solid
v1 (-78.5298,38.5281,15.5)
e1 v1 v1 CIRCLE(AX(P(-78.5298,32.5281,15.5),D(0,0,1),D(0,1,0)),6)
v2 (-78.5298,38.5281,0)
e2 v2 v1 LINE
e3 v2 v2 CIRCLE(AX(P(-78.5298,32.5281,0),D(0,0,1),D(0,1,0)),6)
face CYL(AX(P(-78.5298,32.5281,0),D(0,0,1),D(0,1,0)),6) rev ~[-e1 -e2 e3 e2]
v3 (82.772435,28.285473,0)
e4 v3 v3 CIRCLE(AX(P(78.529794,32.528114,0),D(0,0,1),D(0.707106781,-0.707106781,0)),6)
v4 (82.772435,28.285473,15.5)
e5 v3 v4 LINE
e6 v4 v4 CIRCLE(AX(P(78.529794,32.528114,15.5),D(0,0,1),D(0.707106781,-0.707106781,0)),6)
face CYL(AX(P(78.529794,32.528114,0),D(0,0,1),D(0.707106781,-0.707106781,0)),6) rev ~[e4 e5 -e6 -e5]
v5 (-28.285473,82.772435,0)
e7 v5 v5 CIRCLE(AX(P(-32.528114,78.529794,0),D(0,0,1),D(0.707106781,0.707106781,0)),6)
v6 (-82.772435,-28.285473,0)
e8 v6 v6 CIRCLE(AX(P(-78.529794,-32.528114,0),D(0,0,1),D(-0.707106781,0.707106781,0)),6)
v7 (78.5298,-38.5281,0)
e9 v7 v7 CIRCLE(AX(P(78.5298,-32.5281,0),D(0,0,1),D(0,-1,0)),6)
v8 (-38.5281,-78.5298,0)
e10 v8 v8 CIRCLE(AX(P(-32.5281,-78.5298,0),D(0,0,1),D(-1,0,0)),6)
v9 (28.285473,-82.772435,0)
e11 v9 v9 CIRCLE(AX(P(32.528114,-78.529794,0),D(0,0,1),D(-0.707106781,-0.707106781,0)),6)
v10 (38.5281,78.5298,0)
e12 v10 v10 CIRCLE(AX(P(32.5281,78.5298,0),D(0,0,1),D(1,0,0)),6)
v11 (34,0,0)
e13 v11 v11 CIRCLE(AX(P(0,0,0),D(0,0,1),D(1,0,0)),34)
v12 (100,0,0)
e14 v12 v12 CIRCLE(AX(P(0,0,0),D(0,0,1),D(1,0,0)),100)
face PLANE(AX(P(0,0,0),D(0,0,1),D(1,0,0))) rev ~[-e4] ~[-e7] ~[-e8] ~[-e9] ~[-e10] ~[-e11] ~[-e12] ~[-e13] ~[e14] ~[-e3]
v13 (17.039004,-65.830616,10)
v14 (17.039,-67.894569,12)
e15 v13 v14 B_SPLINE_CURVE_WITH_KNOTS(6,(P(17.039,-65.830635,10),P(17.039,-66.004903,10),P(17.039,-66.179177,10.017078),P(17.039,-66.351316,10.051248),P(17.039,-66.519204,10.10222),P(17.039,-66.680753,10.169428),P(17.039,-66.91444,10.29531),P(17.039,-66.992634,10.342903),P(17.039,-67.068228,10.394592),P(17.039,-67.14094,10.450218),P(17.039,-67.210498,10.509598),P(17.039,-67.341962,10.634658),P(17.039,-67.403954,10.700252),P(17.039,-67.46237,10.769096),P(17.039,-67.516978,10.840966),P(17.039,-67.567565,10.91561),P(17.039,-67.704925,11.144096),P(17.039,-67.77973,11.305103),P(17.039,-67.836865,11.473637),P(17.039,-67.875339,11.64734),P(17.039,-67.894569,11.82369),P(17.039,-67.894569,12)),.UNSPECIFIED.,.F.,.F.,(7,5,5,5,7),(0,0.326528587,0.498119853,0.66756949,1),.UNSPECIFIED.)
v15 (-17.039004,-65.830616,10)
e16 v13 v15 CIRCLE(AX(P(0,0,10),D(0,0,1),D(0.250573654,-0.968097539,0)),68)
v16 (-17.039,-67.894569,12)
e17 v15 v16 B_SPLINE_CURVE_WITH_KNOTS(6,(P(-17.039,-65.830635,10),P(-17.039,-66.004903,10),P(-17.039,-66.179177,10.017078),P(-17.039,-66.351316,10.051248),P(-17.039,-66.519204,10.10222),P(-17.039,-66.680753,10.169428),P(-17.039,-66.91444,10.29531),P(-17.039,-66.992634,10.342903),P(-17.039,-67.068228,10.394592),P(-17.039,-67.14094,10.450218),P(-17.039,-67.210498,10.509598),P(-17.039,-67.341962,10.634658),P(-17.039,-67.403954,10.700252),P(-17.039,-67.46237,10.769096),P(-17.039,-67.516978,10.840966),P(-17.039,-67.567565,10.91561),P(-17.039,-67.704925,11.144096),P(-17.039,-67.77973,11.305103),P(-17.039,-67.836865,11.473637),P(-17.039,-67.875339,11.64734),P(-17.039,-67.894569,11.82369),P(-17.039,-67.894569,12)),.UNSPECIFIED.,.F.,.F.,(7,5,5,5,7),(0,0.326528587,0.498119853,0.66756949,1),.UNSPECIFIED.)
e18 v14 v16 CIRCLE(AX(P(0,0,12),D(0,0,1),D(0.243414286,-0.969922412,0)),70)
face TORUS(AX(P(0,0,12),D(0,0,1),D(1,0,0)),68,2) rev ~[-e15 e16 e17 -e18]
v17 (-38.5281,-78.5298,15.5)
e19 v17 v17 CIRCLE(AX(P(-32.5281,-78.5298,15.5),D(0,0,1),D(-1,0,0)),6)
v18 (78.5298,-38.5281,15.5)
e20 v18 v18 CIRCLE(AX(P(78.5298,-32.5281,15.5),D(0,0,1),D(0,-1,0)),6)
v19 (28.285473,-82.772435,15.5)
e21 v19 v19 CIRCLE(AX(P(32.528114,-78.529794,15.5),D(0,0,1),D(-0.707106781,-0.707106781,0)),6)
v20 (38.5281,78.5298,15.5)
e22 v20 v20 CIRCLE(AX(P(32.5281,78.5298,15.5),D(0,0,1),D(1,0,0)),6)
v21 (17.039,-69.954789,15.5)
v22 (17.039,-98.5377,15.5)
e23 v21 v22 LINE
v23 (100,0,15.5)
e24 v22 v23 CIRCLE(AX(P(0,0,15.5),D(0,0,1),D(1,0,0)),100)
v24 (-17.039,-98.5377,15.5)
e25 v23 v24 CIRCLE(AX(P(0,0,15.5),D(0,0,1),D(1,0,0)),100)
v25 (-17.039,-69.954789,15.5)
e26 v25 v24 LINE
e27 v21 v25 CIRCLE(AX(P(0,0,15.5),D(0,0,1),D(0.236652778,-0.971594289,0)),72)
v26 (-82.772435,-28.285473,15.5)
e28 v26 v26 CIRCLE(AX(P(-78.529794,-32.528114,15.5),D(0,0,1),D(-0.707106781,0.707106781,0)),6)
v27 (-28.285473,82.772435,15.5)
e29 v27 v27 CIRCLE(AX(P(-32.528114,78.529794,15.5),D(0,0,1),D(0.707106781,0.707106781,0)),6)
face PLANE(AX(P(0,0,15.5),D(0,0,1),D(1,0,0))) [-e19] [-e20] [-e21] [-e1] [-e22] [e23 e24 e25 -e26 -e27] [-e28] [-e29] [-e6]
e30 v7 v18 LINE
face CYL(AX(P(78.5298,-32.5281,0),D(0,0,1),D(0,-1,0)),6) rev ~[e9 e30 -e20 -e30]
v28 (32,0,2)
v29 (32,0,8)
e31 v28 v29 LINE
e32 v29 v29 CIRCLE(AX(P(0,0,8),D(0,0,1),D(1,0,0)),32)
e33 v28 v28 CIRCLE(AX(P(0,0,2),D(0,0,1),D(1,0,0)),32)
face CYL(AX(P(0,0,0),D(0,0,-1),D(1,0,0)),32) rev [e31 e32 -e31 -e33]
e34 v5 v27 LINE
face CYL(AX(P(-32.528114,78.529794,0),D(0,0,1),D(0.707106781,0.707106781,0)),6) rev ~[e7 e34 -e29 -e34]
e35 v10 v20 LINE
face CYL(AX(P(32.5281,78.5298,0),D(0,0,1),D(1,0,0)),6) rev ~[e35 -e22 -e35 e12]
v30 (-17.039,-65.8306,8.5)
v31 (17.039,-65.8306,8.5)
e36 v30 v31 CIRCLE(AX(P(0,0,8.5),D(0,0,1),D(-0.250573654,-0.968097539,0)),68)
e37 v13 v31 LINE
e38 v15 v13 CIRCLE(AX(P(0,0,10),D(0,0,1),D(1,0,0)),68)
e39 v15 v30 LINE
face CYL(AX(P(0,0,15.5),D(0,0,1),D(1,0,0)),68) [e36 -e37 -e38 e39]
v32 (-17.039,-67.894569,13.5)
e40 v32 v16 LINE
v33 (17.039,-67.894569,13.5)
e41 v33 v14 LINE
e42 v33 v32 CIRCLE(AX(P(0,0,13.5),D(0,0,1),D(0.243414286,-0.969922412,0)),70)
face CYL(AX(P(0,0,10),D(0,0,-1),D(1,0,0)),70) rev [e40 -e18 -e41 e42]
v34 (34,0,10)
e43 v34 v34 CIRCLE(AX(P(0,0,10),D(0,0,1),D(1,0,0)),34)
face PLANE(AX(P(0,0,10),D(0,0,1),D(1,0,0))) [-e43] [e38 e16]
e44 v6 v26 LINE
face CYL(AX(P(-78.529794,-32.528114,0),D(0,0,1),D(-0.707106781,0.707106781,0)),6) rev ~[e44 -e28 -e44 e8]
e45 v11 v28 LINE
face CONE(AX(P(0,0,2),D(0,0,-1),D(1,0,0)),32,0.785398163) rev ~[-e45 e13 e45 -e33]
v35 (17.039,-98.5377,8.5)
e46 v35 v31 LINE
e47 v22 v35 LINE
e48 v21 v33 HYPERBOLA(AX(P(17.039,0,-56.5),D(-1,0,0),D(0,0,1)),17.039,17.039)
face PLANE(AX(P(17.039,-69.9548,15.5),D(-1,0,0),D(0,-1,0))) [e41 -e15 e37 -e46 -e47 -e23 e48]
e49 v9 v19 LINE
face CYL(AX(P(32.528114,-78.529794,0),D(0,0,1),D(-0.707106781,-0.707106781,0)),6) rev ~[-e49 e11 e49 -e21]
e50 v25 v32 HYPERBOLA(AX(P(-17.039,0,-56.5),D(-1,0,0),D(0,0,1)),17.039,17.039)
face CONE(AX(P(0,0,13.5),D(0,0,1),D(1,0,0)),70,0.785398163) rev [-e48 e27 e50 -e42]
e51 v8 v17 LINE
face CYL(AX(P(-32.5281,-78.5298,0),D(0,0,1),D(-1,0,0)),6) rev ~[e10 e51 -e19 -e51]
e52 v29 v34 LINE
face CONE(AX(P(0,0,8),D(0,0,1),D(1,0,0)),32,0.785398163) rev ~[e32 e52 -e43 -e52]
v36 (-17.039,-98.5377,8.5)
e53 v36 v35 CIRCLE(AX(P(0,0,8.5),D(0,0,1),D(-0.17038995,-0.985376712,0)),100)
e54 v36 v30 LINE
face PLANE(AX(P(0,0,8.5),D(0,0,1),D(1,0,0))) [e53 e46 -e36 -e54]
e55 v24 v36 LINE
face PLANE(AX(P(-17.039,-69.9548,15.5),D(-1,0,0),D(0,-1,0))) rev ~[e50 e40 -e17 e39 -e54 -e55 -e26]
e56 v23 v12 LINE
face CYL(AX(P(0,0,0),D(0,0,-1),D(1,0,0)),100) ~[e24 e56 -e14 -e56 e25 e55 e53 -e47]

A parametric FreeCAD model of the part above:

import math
import FreeCAD as App
import Part
import Sketcher
Q = App.Units.Quantity


def edges_at(feature, points):
    """Names of the edges that pass closest to the given points."""
    edges = feature.Shape.Edges
    near = lambda p: min(range(len(edges)), key=lambda i: edges[i].distToShape(Part.Vertex(*p))[0])
    return sorted({f"Edge{near(p) + 1}" for p in points})

doc = App.newDocument("Part")
body = doc.addObject("PartDesign::Body", "Body")

sketch1 = doc.addObject("Sketcher::SketchObject", "Sketch")
body.addObject(sketch1)
sketch1.AttachmentSupport = (doc.XY_Plane, [""])
sketch1.MapMode = "FlatFace"
sketch1.addGeometry([
    Part.Circle(App.Vector(0, 0, 0), App.Vector(0, 0, 1), 100),
    Part.Circle(App.Vector(0, 0, 0), App.Vector(0, 0, 1), 32),
], False)
sketch1.addConstraint([
    Sketcher.Constraint("Coincident", 0, 3, -1, 1),
    Sketcher.Constraint("Coincident", 1, 3, -1, 1),
    Sketcher.Constraint("Diameter", 0, Q("200 mm")),
    Sketcher.Constraint("Diameter", 1, Q("64 mm")),
])
pad1 = doc.addObject("PartDesign::Pad", "Pad")
body.addObject(pad1)
pad1.Profile = sketch1
pad1.Length = 10

sketch2 = doc.addObject("Sketcher::SketchObject", "Sketch001")
body.addObject(sketch2)
sketch2.AttachmentSupport = (doc.XY_Plane, [""])
sketch2.MapMode = "FlatFace"
sketch2.AttachmentOffset = App.Placement(App.Vector(0, 0, 10), App.Rotation())
sketch2.addGeometry([
    Part.Circle(App.Vector(0, 0, 0), App.Vector(0, 0, 1), 100),
    Part.Circle(App.Vector(0, 0, 0), App.Vector(0, 0, 1), 70),
], False)
sketch2.addConstraint([
    Sketcher.Constraint("Coincident", 0, 3, -1, 1),
    Sketcher.Constraint("Coincident", 1, 3, -1, 1),
    Sketcher.Constraint("Diameter", 1, Q("140 mm")),
    Sketcher.Constraint("Diameter", 0, Q("200 mm")),
])
pad2 = doc.addObject("PartDesign::Pad", "Pad001")
body.addObject(pad2)
pad2.Profile = sketch2
pad2.Length = 5.5

sketch3 = doc.addObject("Sketcher::SketchObject", "Sketch002")
body.addObject(sketch3)
sketch3.AttachmentSupport = (doc.XY_Plane, [""])
sketch3.MapMode = "FlatFace"
sketch3.addGeometry(Part.Circle(App.Vector(-79, 33, 0), App.Vector(0, 0, 1), 6), False)
sketch3.addConstraint([
    Sketcher.Constraint("Diameter", 0, Q("12 mm")),
    Sketcher.Constraint("DistanceY", -1, 1, 0, 3, Q("32.528 mm")),
    Sketcher.Constraint("DistanceX", 0, 3, -1, 1, Q("78.5298 mm")),
])
doc.recompute()
hole = doc.addObject("PartDesign::Hole", "Hole")
body.addObject(hole)
hole.Profile = sketch3
hole.ThreadType = "None"
hole.Diameter = 12
hole.DepthType = "ThroughAll"
hole.Reversed = True
doc.recompute()

polarpattern = doc.addObject("PartDesign::PolarPattern", "PolarPattern")
body.addObject(polarpattern)
polarpattern.Originals = [hole]
polarpattern.Axis = (doc.Z_Axis, [""])
polarpattern.Angle = 360
polarpattern.Occurrences = 8
body.Tip = polarpattern
doc.recompute()

chamfer = doc.addObject("PartDesign::Chamfer", "Chamfer")
body.addObject(chamfer)
chamfer.Base = (polarpattern, edges_at(polarpattern, [(-32, 0, 0), (-32, 0, 10), (-70, 0, 15.5)]))
chamfer.Size = 2
doc.recompute()

fillet = doc.addObject("PartDesign::Fillet", "Fillet")
body.addObject(fillet)
fillet.Base = (chamfer, edges_at(chamfer, [(-70, 0, 10)]))
fillet.Radius = 2

sketch4 = doc.addObject("Sketcher::SketchObject", "Sketch003")
body.addObject(sketch4)
sketch4.AttachmentSupport = (doc.XY_Plane, [""])
sketch4.MapMode = "FlatFace"
sketch4.AttachmentOffset = App.Placement(App.Vector(0, 0, 15.5), App.Rotation())
sketch4.addGeometry([
    Part.LineSegment(App.Vector(17, -99, 0), App.Vector(17, -66, 0)),
    Part.ArcOfCircle(Part.Circle(App.Vector(0, 0, 0), App.Vector(0, 0, 1), 68), math.radians(-105), math.radians(-75)),
    Part.LineSegment(App.Vector(-17, -66, 0), App.Vector(-17, -99, 0)),
    Part.ArcOfCircle(Part.Circle(App.Vector(0, 0, 0), App.Vector(0, 0, 1), 100), math.radians(-99.81), math.radians(-80.19)),
], False)
sketch4.addConstraint([
    Sketcher.Constraint("Coincident", 0, 2, 1, 2),
    Sketcher.Constraint("Coincident", 1, 1, 2, 1),
    Sketcher.Constraint("Coincident", 2, 2, 3, 1),
    Sketcher.Constraint("Coincident", 3, 2, 0, 1),
    Sketcher.Constraint("Vertical", 0),
    Sketcher.Constraint("Vertical", 2),
    Sketcher.Constraint("Coincident", 1, 3, -1, 1),
    Sketcher.Constraint("Coincident", 3, 3, -1, 1),
    Sketcher.Constraint("Horizontal", 0, 2, 1, 1),
    Sketcher.Constraint("Radius", 1, Q("68 mm")),
    Sketcher.Constraint("Radius", 3, Q("100 mm")),
    Sketcher.Constraint("DistanceY", 0, 1, 0, 2, Q("32.707 mm")),
])
pocket1 = doc.addObject("PartDesign::Pocket", "Pocket")
body.addObject(pocket1)
pocket1.Profile = sketch4
pocket1.Length = 7

doc.recompute()
